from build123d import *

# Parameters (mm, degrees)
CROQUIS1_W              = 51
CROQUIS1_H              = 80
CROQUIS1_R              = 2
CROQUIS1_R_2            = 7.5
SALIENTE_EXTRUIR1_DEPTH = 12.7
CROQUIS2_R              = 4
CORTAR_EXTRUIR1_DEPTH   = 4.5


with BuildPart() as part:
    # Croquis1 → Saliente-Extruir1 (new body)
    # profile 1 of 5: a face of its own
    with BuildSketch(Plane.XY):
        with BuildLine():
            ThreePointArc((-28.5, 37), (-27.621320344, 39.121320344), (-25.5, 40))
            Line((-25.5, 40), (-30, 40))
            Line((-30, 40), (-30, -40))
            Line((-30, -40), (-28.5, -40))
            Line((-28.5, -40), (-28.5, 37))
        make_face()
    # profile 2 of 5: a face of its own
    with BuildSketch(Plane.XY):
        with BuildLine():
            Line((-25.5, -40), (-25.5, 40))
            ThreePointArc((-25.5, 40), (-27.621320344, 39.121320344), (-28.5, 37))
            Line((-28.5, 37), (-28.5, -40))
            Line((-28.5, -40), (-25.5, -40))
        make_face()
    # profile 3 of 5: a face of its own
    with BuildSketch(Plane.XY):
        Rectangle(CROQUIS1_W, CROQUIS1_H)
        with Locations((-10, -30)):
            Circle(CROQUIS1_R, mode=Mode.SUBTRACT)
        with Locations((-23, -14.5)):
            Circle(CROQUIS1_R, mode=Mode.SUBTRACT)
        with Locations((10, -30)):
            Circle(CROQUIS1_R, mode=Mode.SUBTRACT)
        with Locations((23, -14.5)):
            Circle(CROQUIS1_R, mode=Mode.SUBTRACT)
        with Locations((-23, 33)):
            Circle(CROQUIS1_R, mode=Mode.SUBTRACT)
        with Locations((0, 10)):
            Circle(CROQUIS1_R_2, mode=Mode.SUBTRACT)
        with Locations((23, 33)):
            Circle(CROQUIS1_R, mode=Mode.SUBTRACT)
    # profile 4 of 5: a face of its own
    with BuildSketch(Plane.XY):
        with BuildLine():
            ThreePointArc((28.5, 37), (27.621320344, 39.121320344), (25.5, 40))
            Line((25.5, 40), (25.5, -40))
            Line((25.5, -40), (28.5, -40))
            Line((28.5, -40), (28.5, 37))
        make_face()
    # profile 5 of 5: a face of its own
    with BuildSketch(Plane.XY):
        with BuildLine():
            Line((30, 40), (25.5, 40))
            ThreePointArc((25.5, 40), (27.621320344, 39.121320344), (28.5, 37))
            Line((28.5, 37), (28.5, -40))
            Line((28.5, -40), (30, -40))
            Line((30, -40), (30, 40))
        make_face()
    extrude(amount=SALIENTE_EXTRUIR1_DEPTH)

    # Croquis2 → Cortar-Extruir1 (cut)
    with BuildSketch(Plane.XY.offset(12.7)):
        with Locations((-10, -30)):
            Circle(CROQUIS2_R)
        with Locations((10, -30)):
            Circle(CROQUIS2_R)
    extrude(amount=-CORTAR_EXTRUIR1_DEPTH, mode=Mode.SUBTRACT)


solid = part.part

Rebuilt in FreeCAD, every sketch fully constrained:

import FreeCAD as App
import Part
import Sketcher
from FreeCAD import Vector
Q = App.Units.Quantity

doc = App.newDocument("Part")
params = doc.addObject("Spreadsheet::Sheet", "Params")
for row, (alias, value) in enumerate([
    ("sketch1_diameter", "4 mm"),
    ("sketch1_diameter2", "15 mm"),
    ("sketch1_width", "60 mm"),
    ("sketch1_height", "80 mm"),
    ("pad1_length", "12.7 mm"),
    ("sketch2_diameter", "8 mm"),
    ("pocket1_length", "4.5 mm"),
], start=1):
    params.set(f"A{row}", alias)
    params.set(f"B{row}", "=" + value)
    params.setAlias(f"B{row}", alias)

body = doc.addObject("PartDesign::Body", "Body")

# Sketch on XY plane
sketch1 = body.newObject("Sketcher::SketchObject", "Sketch")
sketch1.AttachmentSupport = (doc.getObject("XY_Plane"), [""])
sketch1.MapMode = "FlatFace"
sketch1.addGeometry(Part.LineSegment(Vector(-30, 40, 0), Vector(-30, -40, 0)), False)
sketch1.addGeometry(Part.LineSegment(Vector(-30, -40, 0), Vector(30, -40, 0)), False)
sketch1.addGeometry(Part.LineSegment(Vector(30, -40, 0), Vector(30, 40, 0)), False)
sketch1.addGeometry(Part.LineSegment(Vector(30, 40, 0), Vector(-30, 40, 0)), False)
sketch1.addGeometry(Part.Circle(Vector(23, 33, 0), Vector(0, 0, 1), 2), False)
sketch1.addGeometry(Part.Circle(Vector(-10, -30, 0), Vector(0, 0, 1), 2), False)
sketch1.addGeometry(Part.Circle(Vector(-23, -14.5, 0), Vector(0, 0, 1), 2), False)
sketch1.addGeometry(Part.Circle(Vector(10, -30, 0), Vector(0, 0, 1), 2), False)
sketch1.addGeometry(Part.Circle(Vector(23, -14.5, 0), Vector(0, 0, 1), 2), False)
sketch1.addGeometry(Part.Circle(Vector(-23, 33, 0), Vector(0, 0, 1), 2), False)
sketch1.addGeometry(Part.Circle(Vector(0, 10, 0), Vector(0, 0, 1), 7.5), False)
sketch1.addConstraint(Sketcher.Constraint("Coincident", 0, 2, 1, 1))
sketch1.addConstraint(Sketcher.Constraint("Coincident", 1, 2, 2, 1))
sketch1.addConstraint(Sketcher.Constraint("Coincident", 2, 2, 3, 1))
sketch1.addConstraint(Sketcher.Constraint("Coincident", 3, 2, 0, 1))
sketch1.addConstraint(Sketcher.Constraint("Vertical", 0))
sketch1.addConstraint(Sketcher.Constraint("Horizontal", 1))
sketch1.addConstraint(Sketcher.Constraint("Vertical", 2))
sketch1.addConstraint(Sketcher.Constraint("Horizontal", 3))
sketch1.addConstraint(Sketcher.Constraint("Equal", 4, 5))
sketch1.addConstraint(Sketcher.Constraint("Equal", 5, 6))
sketch1.addConstraint(Sketcher.Constraint("Equal", 6, 7))
sketch1.addConstraint(Sketcher.Constraint("Equal", 7, 8))
sketch1.addConstraint(Sketcher.Constraint("Equal", 8, 9))
sketch1.addConstraint(Sketcher.Constraint("Symmetric", 0, 2, 2, 2, -1, 1))
sketch1.addConstraint(Sketcher.Constraint("Symmetric", 5, 3, 7, 3, -2))
sketch1.addConstraint(Sketcher.Constraint("Symmetric", 6, 3, 8, 3, -2))
sketch1.addConstraint(Sketcher.Constraint("Symmetric", 4, 3, 9, 3, -2))
sketch1.addConstraint(Sketcher.Constraint("PointOnObject", 10, 3, -2))
sketch1.addConstraint(Sketcher.Constraint("Vertical", 4, 3, 8, 3))
sketch1.addConstraint(Sketcher.Constraint("Diameter", 4, Q("4 mm")))
sketch1.addConstraint(Sketcher.Constraint("Diameter", 10, Q("15 mm")))
sketch1.addConstraint(Sketcher.Constraint("DistanceX", 1, 1, 1, 2, Q("60 mm")))
sketch1.addConstraint(Sketcher.Constraint("DistanceY", 0, 2, 0, 1, Q("80 mm")))
sketch1.addConstraint(Sketcher.Constraint("DistanceX", -1, 1, 4, 3, Q("23 mm")))
sketch1.addConstraint(Sketcher.Constraint("DistanceY", -1, 1, 4, 3, Q("33 mm")))
sketch1.addConstraint(Sketcher.Constraint("DistanceX", 5, 3, -1, 1, Q("10 mm")))
sketch1.addConstraint(Sketcher.Constraint("DistanceY", 5, 3, -1, 1, Q("30 mm")))
sketch1.addConstraint(Sketcher.Constraint("DistanceY", -1, 1, 10, 3, Q("10 mm")))
sketch1.addConstraint(Sketcher.Constraint("DistanceY", 6, 3, -1, 1, Q("14.5 mm")))
sketch1.setExpression("Constraints[19]", "Params.sketch1_diameter")
sketch1.setExpression("Constraints[20]", "Params.sketch1_diameter2")
sketch1.setExpression("Constraints[21]", "Params.sketch1_width")
sketch1.setExpression("Constraints[22]", "Params.sketch1_height")
pad1 = body.newObject("PartDesign::Pad", "Pad")
pad1.Profile = sketch1
pad1.setExpression("Length", "Params.pad1_length")

# Sketch on XY plane
sketch2 = body.newObject("Sketcher::SketchObject", "Sketch001")
sketch2.AttachmentSupport = (doc.getObject("XY_Plane"), [""])
sketch2.MapMode = "FlatFace"
sketch2.AttachmentOffset = App.Placement(Vector(0, 0, 12.7), App.Rotation())
sketch2.addGeometry(Part.Circle(Vector(-10, -30, 0), Vector(0, 0, 1), 4), False)
sketch2.addGeometry(Part.Circle(Vector(10, -30, 0), Vector(0, 0, 1), 4), False)
sketch2.addConstraint(Sketcher.Constraint("Equal", 0, 1))
sketch2.addConstraint(Sketcher.Constraint("Symmetric", 0, 3, 1, 3, -2))
sketch2.addConstraint(Sketcher.Constraint("Diameter", 0, Q("8 mm")))
sketch2.addConstraint(Sketcher.Constraint("DistanceX", 0, 3, -1, 1, Q("10 mm")))
sketch2.addConstraint(Sketcher.Constraint("DistanceY", 0, 3, -1, 1, Q("30 mm")))
sketch2.setExpression("Constraints[2]", "Params.sketch2_diameter")
pocket1 = body.newObject("PartDesign::Pocket", "Pocket")
pocket1.Profile = sketch2
pocket1.setExpression("Length", "Params.pocket1_length")

doc.recompute()
